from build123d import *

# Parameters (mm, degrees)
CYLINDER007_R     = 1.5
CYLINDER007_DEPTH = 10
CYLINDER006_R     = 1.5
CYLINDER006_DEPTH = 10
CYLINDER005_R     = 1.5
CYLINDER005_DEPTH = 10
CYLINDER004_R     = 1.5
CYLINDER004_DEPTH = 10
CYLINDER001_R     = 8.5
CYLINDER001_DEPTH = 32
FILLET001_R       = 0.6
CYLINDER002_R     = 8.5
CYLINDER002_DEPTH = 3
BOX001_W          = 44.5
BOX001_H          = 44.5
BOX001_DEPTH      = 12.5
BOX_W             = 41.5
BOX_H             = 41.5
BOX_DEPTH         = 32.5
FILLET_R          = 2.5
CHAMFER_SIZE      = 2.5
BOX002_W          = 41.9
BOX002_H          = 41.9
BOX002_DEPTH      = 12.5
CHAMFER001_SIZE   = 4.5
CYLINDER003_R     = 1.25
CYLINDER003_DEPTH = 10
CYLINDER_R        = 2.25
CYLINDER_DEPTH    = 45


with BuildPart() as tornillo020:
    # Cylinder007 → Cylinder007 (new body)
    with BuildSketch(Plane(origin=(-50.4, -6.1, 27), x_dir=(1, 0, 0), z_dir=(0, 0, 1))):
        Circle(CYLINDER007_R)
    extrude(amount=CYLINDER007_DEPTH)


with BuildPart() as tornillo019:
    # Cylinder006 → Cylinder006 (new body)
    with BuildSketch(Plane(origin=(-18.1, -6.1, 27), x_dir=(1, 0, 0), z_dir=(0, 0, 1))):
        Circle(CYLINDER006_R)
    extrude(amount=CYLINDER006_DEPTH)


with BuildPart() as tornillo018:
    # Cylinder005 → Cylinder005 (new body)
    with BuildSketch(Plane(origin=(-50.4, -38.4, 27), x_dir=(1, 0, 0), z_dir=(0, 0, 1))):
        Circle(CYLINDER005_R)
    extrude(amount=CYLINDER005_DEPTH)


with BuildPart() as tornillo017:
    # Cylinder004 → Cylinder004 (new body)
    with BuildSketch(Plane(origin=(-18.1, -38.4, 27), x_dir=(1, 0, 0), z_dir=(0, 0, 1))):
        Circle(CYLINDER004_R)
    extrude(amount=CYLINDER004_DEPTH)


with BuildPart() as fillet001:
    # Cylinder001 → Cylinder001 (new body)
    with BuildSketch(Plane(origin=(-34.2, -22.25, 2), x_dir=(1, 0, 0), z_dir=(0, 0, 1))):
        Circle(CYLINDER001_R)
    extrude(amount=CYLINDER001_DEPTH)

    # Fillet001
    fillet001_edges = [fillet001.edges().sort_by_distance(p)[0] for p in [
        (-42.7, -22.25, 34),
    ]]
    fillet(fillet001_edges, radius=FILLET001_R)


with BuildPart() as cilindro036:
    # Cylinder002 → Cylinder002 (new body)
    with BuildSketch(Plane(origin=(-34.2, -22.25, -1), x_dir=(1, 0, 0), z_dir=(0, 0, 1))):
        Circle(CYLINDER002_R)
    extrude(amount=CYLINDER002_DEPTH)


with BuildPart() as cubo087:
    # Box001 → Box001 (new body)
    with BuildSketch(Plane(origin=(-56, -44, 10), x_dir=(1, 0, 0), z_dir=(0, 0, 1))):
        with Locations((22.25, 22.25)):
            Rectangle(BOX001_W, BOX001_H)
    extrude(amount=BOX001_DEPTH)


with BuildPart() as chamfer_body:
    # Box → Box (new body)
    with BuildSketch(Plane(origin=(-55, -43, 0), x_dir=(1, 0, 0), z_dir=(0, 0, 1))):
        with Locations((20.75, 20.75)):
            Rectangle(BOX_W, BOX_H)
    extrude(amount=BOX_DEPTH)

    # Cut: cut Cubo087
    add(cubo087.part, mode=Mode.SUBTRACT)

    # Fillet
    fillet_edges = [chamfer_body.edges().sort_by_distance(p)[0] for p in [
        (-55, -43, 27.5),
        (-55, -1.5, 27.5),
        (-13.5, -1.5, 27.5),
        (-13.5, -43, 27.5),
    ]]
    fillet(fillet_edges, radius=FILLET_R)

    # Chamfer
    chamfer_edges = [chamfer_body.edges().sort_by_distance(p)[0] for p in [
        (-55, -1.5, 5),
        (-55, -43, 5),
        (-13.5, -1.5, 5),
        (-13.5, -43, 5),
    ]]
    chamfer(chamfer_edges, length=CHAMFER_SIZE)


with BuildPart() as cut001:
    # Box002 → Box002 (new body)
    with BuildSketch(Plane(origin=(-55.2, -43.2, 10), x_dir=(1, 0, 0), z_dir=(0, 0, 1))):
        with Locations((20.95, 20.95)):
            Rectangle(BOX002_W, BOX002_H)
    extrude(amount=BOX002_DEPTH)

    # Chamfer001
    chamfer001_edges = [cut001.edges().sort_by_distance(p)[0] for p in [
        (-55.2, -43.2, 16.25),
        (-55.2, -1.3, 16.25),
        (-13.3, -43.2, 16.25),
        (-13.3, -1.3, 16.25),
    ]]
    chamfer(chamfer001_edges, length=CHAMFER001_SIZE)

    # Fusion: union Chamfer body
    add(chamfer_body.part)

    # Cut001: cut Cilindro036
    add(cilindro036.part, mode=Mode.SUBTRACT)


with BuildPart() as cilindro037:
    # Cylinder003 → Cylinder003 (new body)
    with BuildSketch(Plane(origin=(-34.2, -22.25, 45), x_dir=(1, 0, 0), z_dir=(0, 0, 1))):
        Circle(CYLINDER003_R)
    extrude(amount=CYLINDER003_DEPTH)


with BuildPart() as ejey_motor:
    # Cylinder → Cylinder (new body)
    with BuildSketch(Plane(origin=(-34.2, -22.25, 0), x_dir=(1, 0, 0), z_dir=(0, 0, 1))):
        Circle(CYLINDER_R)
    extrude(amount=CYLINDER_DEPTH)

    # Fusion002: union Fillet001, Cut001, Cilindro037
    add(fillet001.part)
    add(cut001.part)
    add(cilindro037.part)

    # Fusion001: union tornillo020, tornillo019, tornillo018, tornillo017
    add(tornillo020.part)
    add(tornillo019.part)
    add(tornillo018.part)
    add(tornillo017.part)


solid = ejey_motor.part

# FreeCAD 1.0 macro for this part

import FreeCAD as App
import Part
import Sketcher

V = App.Vector
Q = App.Units.Quantity


def edges_at(feature, points):
    """Names of the edges that pass closest to the given points."""
    edges = feature.Shape.Edges
    near = lambda p: min(range(len(edges)), key=lambda i: edges[i].distToShape(Part.Vertex(*p))[0])
    return sorted({f"Edge{near(p) + 1}" for p in points})


def add_polygon(sketch, points):
    """Adds a closed chain of lines whose ends are joined by coincident constraints."""
    first, n = sketch.GeometryCount, len(points)
    for a, b in zip(points, points[1:] + points[:1]):
        sketch.addGeometry(Part.LineSegment(App.Vector(*a, 0), App.Vector(*b, 0)), False)
    for i in range(n):
        sketch.addConstraint(Sketcher.Constraint("Coincident", first + i, 2, first + (i + 1) % n, 1))

doc = App.newDocument("Part")
body = doc.addObject("PartDesign::Body", "Body")

# Sketch on XY plane
sketch1 = body.newObject("Sketcher::SketchObject", "Sketch")
sketch1.AttachmentSupport = (doc.getObject("XY_Plane"), [""])
sketch1.MapMode = "FlatFace"
sketch1.AttachmentOffset = App.Placement(V(0, 0, 27), App.Rotation())
sketch1.addGeometry(Part.Circle(V(-50.4, -6.1, 0), V(0, 0, 1), 1.5), False)
sketch1.addConstraint([
    Sketcher.Constraint("Diameter", 0, Q("3 mm")),
    Sketcher.Constraint("DistanceX", 0, 3, -1, 1, Q("50.4 mm")),
    Sketcher.Constraint("DistanceY", 0, 3, -1, 1, Q("6.1 mm")),
])
pad1 = body.newObject("PartDesign::Pad", "Pad")
pad1.Profile = sketch1
pad1.Length = 10
body2 = doc.addObject("PartDesign::Body", "Body001")

# Sketch on XY plane
sketch2 = body2.newObject("Sketcher::SketchObject", "Sketch001")
sketch2.AttachmentSupport = (doc.getObject("XY_Plane001"), [""])
sketch2.MapMode = "FlatFace"
sketch2.AttachmentOffset = App.Placement(V(0, 0, 27), App.Rotation())
sketch2.addGeometry(Part.Circle(V(-18.1, -6.1, 0), V(0, 0, 1), 1.5), False)
sketch2.addConstraint([
    Sketcher.Constraint("Diameter", 0, Q("3 mm")),
    Sketcher.Constraint("DistanceX", 0, 3, -1, 1, Q("18.1 mm")),
    Sketcher.Constraint("DistanceY", 0, 3, -1, 1, Q("6.1 mm")),
])
pad2 = body2.newObject("PartDesign::Pad", "Pad001")
pad2.Profile = sketch2
pad2.Length = 10
body3 = doc.addObject("PartDesign::Body", "Body002")

# Sketch on XY plane
sketch3 = body3.newObject("Sketcher::SketchObject", "Sketch002")
sketch3.AttachmentSupport = (doc.getObject("XY_Plane002"), [""])
sketch3.MapMode = "FlatFace"
sketch3.AttachmentOffset = App.Placement(V(0, 0, 27), App.Rotation())
sketch3.addGeometry(Part.Circle(V(-50.4, -38.4, 0), V(0, 0, 1), 1.5), False)
sketch3.addConstraint([
    Sketcher.Constraint("Diameter", 0, Q("3 mm")),
    Sketcher.Constraint("DistanceX", 0, 3, -1, 1, Q("50.4 mm")),
    Sketcher.Constraint("DistanceY", 0, 3, -1, 1, Q("38.4 mm")),
])
pad3 = body3.newObject("PartDesign::Pad", "Pad002")
pad3.Profile = sketch3
pad3.Length = 10
body4 = doc.addObject("PartDesign::Body", "Body003")

# Sketch on XY plane
sketch4 = body4.newObject("Sketcher::SketchObject", "Sketch003")
sketch4.AttachmentSupport = (doc.getObject("XY_Plane003"), [""])
sketch4.MapMode = "FlatFace"
sketch4.AttachmentOffset = App.Placement(V(0, 0, 27), App.Rotation())
sketch4.addGeometry(Part.Circle(V(-18.1, -38.4, 0), V(0, 0, 1), 1.5), False)
sketch4.addConstraint([
    Sketcher.Constraint("Diameter", 0, Q("3 mm")),
    Sketcher.Constraint("DistanceX", 0, 3, -1, 1, Q("18.1 mm")),
    Sketcher.Constraint("DistanceY", 0, 3, -1, 1, Q("38.4 mm")),
])
pad4 = body4.newObject("PartDesign::Pad", "Pad003")
pad4.Profile = sketch4
pad4.Length = 10
body5 = doc.addObject("PartDesign::Body", "Body004")

# Sketch on XY plane
sketch5 = body5.newObject("Sketcher::SketchObject", "Sketch004")
sketch5.AttachmentSupport = (doc.getObject("XY_Plane004"), [""])
sketch5.MapMode = "FlatFace"
sketch5.AttachmentOffset = App.Placement(V(0, 0, 2), App.Rotation())
sketch5.addGeometry(Part.Circle(V(-34, -22, 0), V(0, 0, 1), 8), False)
sketch5.addConstraint([
    Sketcher.Constraint("Diameter", 0, Q("17 mm")),
    Sketcher.Constraint("DistanceX", 0, 3, -1, 1, Q("34.2 mm")),
    Sketcher.Constraint("DistanceY", 0, 3, -1, 1, Q("22.25 mm")),
])
pad5 = body5.newObject("PartDesign::Pad", "Pad004")
pad5.Profile = sketch5
pad5.Length = 32
doc.recompute()

fillet = body5.newObject("PartDesign::Fillet", "Fillet")
fillet.Base = (pad5, edges_at(pad5, [(-42.7, -22.25, 34)]))
fillet.Radius = 0.6
body6 = doc.addObject("PartDesign::Body", "Body005")

# Sketch on XY plane
sketch6 = body6.newObject("Sketcher::SketchObject", "Sketch005")
sketch6.AttachmentSupport = (doc.getObject("XY_Plane005"), [""])
sketch6.MapMode = "FlatFace"
sketch6.AttachmentOffset = App.Placement(V(0, 0, -1), App.Rotation())
sketch6.addGeometry(Part.Circle(V(-34, -22, 0), V(0, 0, 1), 8), False)
sketch6.addConstraint([
    Sketcher.Constraint("Diameter", 0, Q("17 mm")),
    Sketcher.Constraint("DistanceX", 0, 3, -1, 1, Q("34.2 mm")),
    Sketcher.Constraint("DistanceY", 0, 3, -1, 1, Q("22.25 mm")),
])
pad6 = body6.newObject("PartDesign::Pad", "Pad005")
pad6.Profile = sketch6
pad6.Length = 3
body7 = doc.addObject("PartDesign::Body", "Body006")

# Sketch on XY plane
sketch7 = body7.newObject("Sketcher::SketchObject", "Sketch006")
sketch7.AttachmentSupport = (doc.getObject("XY_Plane006"), [""])
sketch7.MapMode = "FlatFace"
sketch7.AttachmentOffset = App.Placement(V(0, 0, 10), App.Rotation())
add_polygon(sketch7, [(-56, 0), (-56, -44), (-12, -44), (-12, 0)])  # lines 0-3
sketch7.addConstraint([
    Sketcher.Constraint("Vertical", 0),
    Sketcher.Constraint("Horizontal", 1),
    Sketcher.Constraint("Vertical", 2),
    Sketcher.Constraint("Horizontal", 3),
    Sketcher.Constraint("Equal", 3, 0),
    Sketcher.Constraint("DistanceX", 1, 1, 1, 2, Q("44.5 mm")),
    Sketcher.Constraint("DistanceX", 0, 2, -1, 1, Q("56 mm")),
    Sketcher.Constraint("DistanceY", 0, 2, -1, 1, Q("44 mm")),
])
pad7 = body7.newObject("PartDesign::Pad", "Pad006")
pad7.Profile = sketch7
pad7.Length = 12.5
body8 = doc.addObject("PartDesign::Body", "Body007")
body8.AllowCompound = True

# Sketch on XY plane
sketch8 = body8.newObject("Sketcher::SketchObject", "Sketch007")
sketch8.AttachmentSupport = (doc.getObject("XY_Plane007"), [""])
sketch8.MapMode = "FlatFace"
add_polygon(sketch8, [(-55, -2), (-55, -43), (-14, -43), (-14, -2)])  # lines 0-3
sketch8.addConstraint([
    Sketcher.Constraint("Vertical", 0),
    Sketcher.Constraint("Horizontal", 1),
    Sketcher.Constraint("Vertical", 2),
    Sketcher.Constraint("Horizontal", 3),
    Sketcher.Constraint("Equal", 3, 0),
    Sketcher.Constraint("DistanceX", 1, 1, 1, 2, Q("41.5 mm")),
    Sketcher.Constraint("DistanceX", 0, 2, -1, 1, Q("55 mm")),
    Sketcher.Constraint("DistanceY", 0, 2, -1, 1, Q("43 mm")),
])
pad8 = body8.newObject("PartDesign::Pad", "Pad007")
pad8.Profile = sketch8
pad8.Length = 32.5
doc.recompute()

boolean = body8.newObject("PartDesign::Boolean", "Boolean")
boolean.Type = "Cut"
boolean.addObjects([body7])
doc.recompute()

fillet2 = body8.newObject("PartDesign::Fillet", "Fillet001")
fillet2.Base = (boolean, edges_at(boolean, [
    (-55, -43, 27.5),
    (-55, -1.5, 27.5),
    (-13.5, -1.5, 27.5),
    (-13.5, -43, 27.5),
]))
fillet2.Radius = 2.5
doc.recompute()

chamfer = body8.newObject("PartDesign::Chamfer", "Chamfer")
chamfer.Base = (fillet2, edges_at(fillet2, [
    (-55, -1.5, 5),
    (-55, -43, 5),
    (-13.5, -1.5, 5),
    (-13.5, -43, 5),
]))
chamfer.Size = 2.5
body9 = doc.addObject("PartDesign::Body", "Body008")

# Sketch on XY plane
sketch9 = body9.newObject("Sketcher::SketchObject", "Sketch008")
sketch9.AttachmentSupport = (doc.getObject("XY_Plane008"), [""])
sketch9.MapMode = "FlatFace"
sketch9.AttachmentOffset = App.Placement(V(0, 0, 10), App.Rotation())
add_polygon(sketch9, [(-55, -1), (-55, -43), (-13, -43), (-13, -1)])  # lines 0-3
sketch9.addConstraint([
    Sketcher.Constraint("Vertical", 0),
    Sketcher.Constraint("Horizontal", 1),
    Sketcher.Constraint("Vertical", 2),
    Sketcher.Constraint("Horizontal", 3),
    Sketcher.Constraint("Equal", 3, 0),
    Sketcher.Constraint("DistanceX", 1, 1, 1, 2, Q("41.9 mm")),
    Sketcher.Constraint("DistanceX", 0, 2, -1, 1, Q("55.2 mm")),
    Sketcher.Constraint("DistanceY", 0, 2, -1, 1, Q("43.2 mm")),
])
pad9 = body9.newObject("PartDesign::Pad", "Pad008")
pad9.Profile = sketch9
pad9.Length = 12.5
doc.recompute()

chamfer2 = body9.newObject("PartDesign::Chamfer", "Chamfer001")
chamfer2.Base = (pad9, edges_at(pad9, [
    (-55.2, -43.2, 16.25),
    (-55.2, -1.3, 16.25),
    (-13.3, -43.2, 16.25),
    (-13.3, -1.3, 16.25),
]))
chamfer2.Size = 4.5
doc.recompute()

boolean2 = body9.newObject("PartDesign::Boolean", "Boolean001")
boolean2.Type = "Fuse"
boolean2.addObjects([body8])
doc.recompute()

boolean3 = body9.newObject("PartDesign::Boolean", "Boolean002")
boolean3.Type = "Cut"
boolean3.addObjects([body6])
body10 = doc.addObject("PartDesign::Body", "Body009")

# Sketch on XY plane
sketch10 = body10.newObject("Sketcher::SketchObject", "Sketch009")
sketch10.AttachmentSupport = (doc.getObject("XY_Plane009"), [""])
sketch10.MapMode = "FlatFace"
sketch10.AttachmentOffset = App.Placement(V(0, 0, 45), App.Rotation())
sketch10.addGeometry(Part.Circle(V(-34.2, -22.2, 0), V(0, 0, 1), 1.2), False)
sketch10.addConstraint([
    Sketcher.Constraint("Diameter", 0, Q("2.5 mm")),
    Sketcher.Constraint("DistanceX", 0, 3, -1, 1, Q("34.2 mm")),
    Sketcher.Constraint("DistanceY", 0, 3, -1, 1, Q("22.25 mm")),
])
pad10 = body10.newObject("PartDesign::Pad", "Pad009")
pad10.Profile = sketch10
pad10.Length = 10
body11 = doc.addObject("PartDesign::Body", "Body010")

# Sketch on XY plane
sketch11 = body11.newObject("Sketcher::SketchObject", "Sketch010")
sketch11.AttachmentSupport = (doc.getObject("XY_Plane010"), [""])
sketch11.MapMode = "FlatFace"
sketch11.addGeometry(Part.Circle(V(-34.2, -22.2, 0), V(0, 0, 1), 2.2), False)
sketch11.addConstraint([
    Sketcher.Constraint("Diameter", 0, Q("4.5 mm")),
    Sketcher.Constraint("DistanceX", 0, 3, -1, 1, Q("34.2 mm")),
    Sketcher.Constraint("DistanceY", 0, 3, -1, 1, Q("22.25 mm")),
])
pad11 = body11.newObject("PartDesign::Pad", "Pad010")
pad11.Profile = sketch11
pad11.Length = 45
doc.recompute()

boolean4 = body11.newObject("PartDesign::Boolean", "Boolean003")
boolean4.Type = "Fuse"
boolean4.addObjects([body5])
doc.recompute()

boolean5 = body11.newObject("PartDesign::Boolean", "Boolean004")
boolean5.Type = "Fuse"
boolean5.addObjects([body9])
doc.recompute()

boolean6 = body11.newObject("PartDesign::Boolean", "Boolean005")
boolean6.Type = "Fuse"
boolean6.addObjects([body10])
doc.recompute()

boolean7 = body11.newObject("PartDesign::Boolean", "Boolean006")
boolean7.Type = "Fuse"
boolean7.addObjects([body])
doc.recompute()

boolean8 = body11.newObject("PartDesign::Boolean", "Boolean007")
boolean8.Type = "Fuse"
boolean8.addObjects([body2])
doc.recompute()

boolean9 = body11.newObject("PartDesign::Boolean", "Boolean008")
boolean9.Type = "Fuse"
boolean9.addObjects([body3])
doc.recompute()

boolean10 = body11.newObject("PartDesign::Boolean", "Boolean009")
boolean10.Type = "Fuse"
boolean10.addObjects([body4])

doc.recompute()
